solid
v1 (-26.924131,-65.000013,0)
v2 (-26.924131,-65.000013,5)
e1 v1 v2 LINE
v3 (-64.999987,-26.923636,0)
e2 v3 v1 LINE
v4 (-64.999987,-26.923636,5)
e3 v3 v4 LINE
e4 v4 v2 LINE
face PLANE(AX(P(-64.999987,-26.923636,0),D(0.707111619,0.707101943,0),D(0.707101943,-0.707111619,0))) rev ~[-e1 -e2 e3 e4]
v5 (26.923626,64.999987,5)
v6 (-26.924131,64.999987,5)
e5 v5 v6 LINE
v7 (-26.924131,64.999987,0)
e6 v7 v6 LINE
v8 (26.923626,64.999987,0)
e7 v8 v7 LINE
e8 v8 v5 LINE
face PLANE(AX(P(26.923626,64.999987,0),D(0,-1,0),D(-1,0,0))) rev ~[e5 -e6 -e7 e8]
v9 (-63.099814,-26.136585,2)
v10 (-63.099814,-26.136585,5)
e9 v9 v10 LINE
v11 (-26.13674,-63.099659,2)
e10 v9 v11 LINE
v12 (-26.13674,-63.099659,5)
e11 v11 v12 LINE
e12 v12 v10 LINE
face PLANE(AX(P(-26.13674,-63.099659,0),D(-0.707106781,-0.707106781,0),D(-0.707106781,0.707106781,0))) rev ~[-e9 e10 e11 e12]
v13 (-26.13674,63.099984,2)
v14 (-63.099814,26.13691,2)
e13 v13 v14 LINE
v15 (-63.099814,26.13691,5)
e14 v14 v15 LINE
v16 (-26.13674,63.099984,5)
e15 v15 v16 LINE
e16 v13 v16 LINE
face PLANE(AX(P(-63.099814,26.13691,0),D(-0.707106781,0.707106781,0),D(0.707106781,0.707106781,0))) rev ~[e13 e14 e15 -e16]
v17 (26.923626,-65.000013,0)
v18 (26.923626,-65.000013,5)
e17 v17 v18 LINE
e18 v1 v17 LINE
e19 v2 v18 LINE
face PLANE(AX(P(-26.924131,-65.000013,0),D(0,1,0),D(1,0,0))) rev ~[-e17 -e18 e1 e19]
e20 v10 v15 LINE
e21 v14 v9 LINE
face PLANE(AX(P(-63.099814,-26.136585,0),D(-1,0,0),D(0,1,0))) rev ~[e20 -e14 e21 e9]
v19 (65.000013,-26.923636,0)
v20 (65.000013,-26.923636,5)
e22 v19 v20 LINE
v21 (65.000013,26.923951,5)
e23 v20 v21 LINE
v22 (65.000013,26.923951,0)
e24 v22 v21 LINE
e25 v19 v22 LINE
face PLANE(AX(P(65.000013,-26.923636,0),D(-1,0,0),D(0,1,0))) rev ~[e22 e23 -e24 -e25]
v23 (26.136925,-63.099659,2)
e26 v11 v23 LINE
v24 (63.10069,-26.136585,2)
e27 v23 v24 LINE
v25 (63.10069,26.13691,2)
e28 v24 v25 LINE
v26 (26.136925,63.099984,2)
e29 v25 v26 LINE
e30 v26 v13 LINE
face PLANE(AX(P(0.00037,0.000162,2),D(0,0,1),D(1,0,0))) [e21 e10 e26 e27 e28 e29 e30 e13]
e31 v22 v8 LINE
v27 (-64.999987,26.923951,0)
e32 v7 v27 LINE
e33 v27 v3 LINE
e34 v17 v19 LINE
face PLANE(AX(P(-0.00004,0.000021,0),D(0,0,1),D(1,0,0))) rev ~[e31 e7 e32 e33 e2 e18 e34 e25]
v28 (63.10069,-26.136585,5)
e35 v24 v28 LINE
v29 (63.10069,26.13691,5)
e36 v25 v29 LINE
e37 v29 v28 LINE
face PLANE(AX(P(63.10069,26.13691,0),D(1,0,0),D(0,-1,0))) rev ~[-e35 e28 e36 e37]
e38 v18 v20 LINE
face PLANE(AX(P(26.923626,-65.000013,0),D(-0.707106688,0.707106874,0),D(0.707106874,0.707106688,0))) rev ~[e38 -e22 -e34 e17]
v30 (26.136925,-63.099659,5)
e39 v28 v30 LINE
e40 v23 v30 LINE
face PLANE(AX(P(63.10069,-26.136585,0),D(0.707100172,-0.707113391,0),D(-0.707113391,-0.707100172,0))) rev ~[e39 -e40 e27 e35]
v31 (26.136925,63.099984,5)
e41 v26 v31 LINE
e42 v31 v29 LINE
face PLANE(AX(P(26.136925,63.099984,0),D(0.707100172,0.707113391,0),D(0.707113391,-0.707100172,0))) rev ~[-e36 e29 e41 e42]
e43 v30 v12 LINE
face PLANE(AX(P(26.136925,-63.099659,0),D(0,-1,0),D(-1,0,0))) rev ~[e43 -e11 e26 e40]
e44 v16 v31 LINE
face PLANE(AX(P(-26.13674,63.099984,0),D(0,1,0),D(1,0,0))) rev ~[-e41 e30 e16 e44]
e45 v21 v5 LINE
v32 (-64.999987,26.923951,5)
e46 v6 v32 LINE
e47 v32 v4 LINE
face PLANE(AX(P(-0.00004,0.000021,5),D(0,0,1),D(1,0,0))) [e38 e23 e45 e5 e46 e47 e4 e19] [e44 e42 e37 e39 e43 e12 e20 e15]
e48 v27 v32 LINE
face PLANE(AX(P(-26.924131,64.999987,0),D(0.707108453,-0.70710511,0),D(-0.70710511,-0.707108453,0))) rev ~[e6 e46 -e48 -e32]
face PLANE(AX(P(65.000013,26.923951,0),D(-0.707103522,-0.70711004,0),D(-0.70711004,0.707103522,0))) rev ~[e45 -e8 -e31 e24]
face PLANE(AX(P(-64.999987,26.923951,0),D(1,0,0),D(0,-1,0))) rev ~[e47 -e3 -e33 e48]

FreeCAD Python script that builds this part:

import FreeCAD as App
import Part
import Sketcher
Q = App.Units.Quantity


def add_polygon(sketch, points):
    """Adds a closed chain of lines whose ends are joined by coincident constraints."""
    first, n = sketch.GeometryCount, len(points)
    for a, b in zip(points, points[1:] + points[:1]):
        sketch.addGeometry(Part.LineSegment(App.Vector(*a, 0), App.Vector(*b, 0)), False)
    for i in range(n):
        sketch.addConstraint(Sketcher.Constraint("Coincident", first + i, 2, first + (i + 1) % n, 1))

doc = App.newDocument("Part")
body = doc.addObject("PartDesign::Body", "Body")

sketch1 = doc.addObject("Sketcher::SketchObject", "Sketch")
body.addObject(sketch1)
sketch1.AttachmentSupport = (doc.XY_Plane, [""])
sketch1.MapMode = "FlatFace"
add_polygon(sketch1, [(63, 26), (26, 63), (-26, 63), (-63, 26), (-63, -26), (-26, -63), (26, -63), (63, -26)])
sketch1.addConstraint([
    Sketcher.Constraint("Horizontal", 1),
    Sketcher.Constraint("Vertical", 3),
    Sketcher.Constraint("Horizontal", 5),
    Sketcher.Constraint("Vertical", 7),
    Sketcher.Constraint("Perpendicular", 2, 4),
    Sketcher.Constraint("Horizontal", 3, 2, 6, 2),
    Sketcher.Constraint("Horizontal", 2, 2, 7, 2),
    Sketcher.Constraint("Vertical", 1, 2, 4, 2),
    Sketcher.Constraint("Vertical", 0, 2, 5, 2),
    Sketcher.Constraint("Equal", 2, 4),
    Sketcher.Constraint("Distance", 0, Q("52.274169 mm")),
    Sketcher.Constraint("Distance", 2, Q("52.273681 mm")),
    Sketcher.Constraint("DistanceX", 1, 2, 1, 1, Q("52.273665 mm")),
    Sketcher.Constraint("DistanceY", 3, 2, 3, 1, Q("52.273495 mm")),
    Sketcher.Constraint("DistanceX", 1, 2, -1, 1, Q("26.13674 mm")),
    Sketcher.Constraint("DistanceY", -1, 1, 2, 2, Q("26.13691 mm")),
])
pad1 = doc.addObject("PartDesign::Pad", "Pad")
body.addObject(pad1)
pad1.Profile = sketch1
pad1.Length = 2

sketch2 = doc.addObject("Sketcher::SketchObject", "Sketch001")
body.addObject(sketch2)
sketch2.AttachmentSupport = (doc.XY_Plane, [""])
sketch2.MapMode = "FlatFace"
add_polygon(sketch2, [(65, 27), (27, 65), (-27, 65), (-65, 27), (-65, -27), (-27, -65), (27, -65), (65, -27)])
add_polygon(sketch2, [(-63, 26), (-26, 63), (26, 63), (63, 26), (63, -26), (26, -63), (-26, -63), (-63, -26)])
sketch2.addConstraint([
    Sketcher.Constraint("Horizontal", 1),
    Sketcher.Constraint("Vertical", 3),
    Sketcher.Constraint("Horizontal", 5),
    Sketcher.Constraint("Vertical", 7),
    Sketcher.Constraint("Horizontal", 9),
    Sketcher.Constraint("Vertical", 11),
    Sketcher.Constraint("Horizontal", 13),
    Sketcher.Constraint("Vertical", 15),
    Sketcher.Constraint("Parallel", 6, 8),
    Sketcher.Constraint("Perpendicular", 8, 14),
    Sketcher.Constraint("Horizontal", 3, 2, 6, 2),
    Sketcher.Constraint("Horizontal", 2, 2, 7, 2),
    Sketcher.Constraint("Horizontal", 11, 2, 14, 2),
    Sketcher.Constraint("Horizontal", 10, 2, 15, 2),
    Sketcher.Constraint("Vertical", 1, 2, 4, 2),
    Sketcher.Constraint("Vertical", 0, 2, 5, 2),
    Sketcher.Constraint("Vertical", 9, 2, 12, 2),
    Sketcher.Constraint("Vertical", 8, 2, 13, 2),
    Sketcher.Constraint("Equal", 10, 12),
    Sketcher.Constraint("DistanceY", 4, 2, 1, 2, Q("130 mm")),
    Sketcher.Constraint("DistanceX", 3, 2, 6, 2, Q("130 mm")),
    Sketcher.Constraint("DistanceX", 9, 2, 0, 2, Q("0.786701 mm")),
    Sketcher.Constraint("Distance", 2, Q("53.847519 mm")),
    Sketcher.Constraint("Distance", 4, Q("53.84776 mm")),
    Sketcher.Constraint("Distance", 8, Q("52.273681 mm")),
    Sketcher.Constraint("Distance", 10, Q("52.274169 mm")),
    Sketcher.Constraint("DistanceX", 9, 1, 9, 2, Q("52.273665 mm")),
    Sketcher.Constraint("DistanceY", 3, 2, 3, 1, Q("53.847587 mm")),
    Sketcher.Constraint("DistanceY", 11, 2, 11, 1, Q("52.273495 mm")),
    Sketcher.Constraint("DistanceX", 1, 2, -1, 1, Q("26.924131 mm")),
    Sketcher.Constraint("DistanceY", -1, 1, 2, 2, Q("26.923951 mm")),
    Sketcher.Constraint("DistanceY", -1, 1, 10, 2, Q("26.13691 mm")),
])
pad2 = doc.addObject("PartDesign::Pad", "Pad001")
body.addObject(pad2)
pad2.Profile = sketch2
pad2.Length = 5

doc.recompute()
